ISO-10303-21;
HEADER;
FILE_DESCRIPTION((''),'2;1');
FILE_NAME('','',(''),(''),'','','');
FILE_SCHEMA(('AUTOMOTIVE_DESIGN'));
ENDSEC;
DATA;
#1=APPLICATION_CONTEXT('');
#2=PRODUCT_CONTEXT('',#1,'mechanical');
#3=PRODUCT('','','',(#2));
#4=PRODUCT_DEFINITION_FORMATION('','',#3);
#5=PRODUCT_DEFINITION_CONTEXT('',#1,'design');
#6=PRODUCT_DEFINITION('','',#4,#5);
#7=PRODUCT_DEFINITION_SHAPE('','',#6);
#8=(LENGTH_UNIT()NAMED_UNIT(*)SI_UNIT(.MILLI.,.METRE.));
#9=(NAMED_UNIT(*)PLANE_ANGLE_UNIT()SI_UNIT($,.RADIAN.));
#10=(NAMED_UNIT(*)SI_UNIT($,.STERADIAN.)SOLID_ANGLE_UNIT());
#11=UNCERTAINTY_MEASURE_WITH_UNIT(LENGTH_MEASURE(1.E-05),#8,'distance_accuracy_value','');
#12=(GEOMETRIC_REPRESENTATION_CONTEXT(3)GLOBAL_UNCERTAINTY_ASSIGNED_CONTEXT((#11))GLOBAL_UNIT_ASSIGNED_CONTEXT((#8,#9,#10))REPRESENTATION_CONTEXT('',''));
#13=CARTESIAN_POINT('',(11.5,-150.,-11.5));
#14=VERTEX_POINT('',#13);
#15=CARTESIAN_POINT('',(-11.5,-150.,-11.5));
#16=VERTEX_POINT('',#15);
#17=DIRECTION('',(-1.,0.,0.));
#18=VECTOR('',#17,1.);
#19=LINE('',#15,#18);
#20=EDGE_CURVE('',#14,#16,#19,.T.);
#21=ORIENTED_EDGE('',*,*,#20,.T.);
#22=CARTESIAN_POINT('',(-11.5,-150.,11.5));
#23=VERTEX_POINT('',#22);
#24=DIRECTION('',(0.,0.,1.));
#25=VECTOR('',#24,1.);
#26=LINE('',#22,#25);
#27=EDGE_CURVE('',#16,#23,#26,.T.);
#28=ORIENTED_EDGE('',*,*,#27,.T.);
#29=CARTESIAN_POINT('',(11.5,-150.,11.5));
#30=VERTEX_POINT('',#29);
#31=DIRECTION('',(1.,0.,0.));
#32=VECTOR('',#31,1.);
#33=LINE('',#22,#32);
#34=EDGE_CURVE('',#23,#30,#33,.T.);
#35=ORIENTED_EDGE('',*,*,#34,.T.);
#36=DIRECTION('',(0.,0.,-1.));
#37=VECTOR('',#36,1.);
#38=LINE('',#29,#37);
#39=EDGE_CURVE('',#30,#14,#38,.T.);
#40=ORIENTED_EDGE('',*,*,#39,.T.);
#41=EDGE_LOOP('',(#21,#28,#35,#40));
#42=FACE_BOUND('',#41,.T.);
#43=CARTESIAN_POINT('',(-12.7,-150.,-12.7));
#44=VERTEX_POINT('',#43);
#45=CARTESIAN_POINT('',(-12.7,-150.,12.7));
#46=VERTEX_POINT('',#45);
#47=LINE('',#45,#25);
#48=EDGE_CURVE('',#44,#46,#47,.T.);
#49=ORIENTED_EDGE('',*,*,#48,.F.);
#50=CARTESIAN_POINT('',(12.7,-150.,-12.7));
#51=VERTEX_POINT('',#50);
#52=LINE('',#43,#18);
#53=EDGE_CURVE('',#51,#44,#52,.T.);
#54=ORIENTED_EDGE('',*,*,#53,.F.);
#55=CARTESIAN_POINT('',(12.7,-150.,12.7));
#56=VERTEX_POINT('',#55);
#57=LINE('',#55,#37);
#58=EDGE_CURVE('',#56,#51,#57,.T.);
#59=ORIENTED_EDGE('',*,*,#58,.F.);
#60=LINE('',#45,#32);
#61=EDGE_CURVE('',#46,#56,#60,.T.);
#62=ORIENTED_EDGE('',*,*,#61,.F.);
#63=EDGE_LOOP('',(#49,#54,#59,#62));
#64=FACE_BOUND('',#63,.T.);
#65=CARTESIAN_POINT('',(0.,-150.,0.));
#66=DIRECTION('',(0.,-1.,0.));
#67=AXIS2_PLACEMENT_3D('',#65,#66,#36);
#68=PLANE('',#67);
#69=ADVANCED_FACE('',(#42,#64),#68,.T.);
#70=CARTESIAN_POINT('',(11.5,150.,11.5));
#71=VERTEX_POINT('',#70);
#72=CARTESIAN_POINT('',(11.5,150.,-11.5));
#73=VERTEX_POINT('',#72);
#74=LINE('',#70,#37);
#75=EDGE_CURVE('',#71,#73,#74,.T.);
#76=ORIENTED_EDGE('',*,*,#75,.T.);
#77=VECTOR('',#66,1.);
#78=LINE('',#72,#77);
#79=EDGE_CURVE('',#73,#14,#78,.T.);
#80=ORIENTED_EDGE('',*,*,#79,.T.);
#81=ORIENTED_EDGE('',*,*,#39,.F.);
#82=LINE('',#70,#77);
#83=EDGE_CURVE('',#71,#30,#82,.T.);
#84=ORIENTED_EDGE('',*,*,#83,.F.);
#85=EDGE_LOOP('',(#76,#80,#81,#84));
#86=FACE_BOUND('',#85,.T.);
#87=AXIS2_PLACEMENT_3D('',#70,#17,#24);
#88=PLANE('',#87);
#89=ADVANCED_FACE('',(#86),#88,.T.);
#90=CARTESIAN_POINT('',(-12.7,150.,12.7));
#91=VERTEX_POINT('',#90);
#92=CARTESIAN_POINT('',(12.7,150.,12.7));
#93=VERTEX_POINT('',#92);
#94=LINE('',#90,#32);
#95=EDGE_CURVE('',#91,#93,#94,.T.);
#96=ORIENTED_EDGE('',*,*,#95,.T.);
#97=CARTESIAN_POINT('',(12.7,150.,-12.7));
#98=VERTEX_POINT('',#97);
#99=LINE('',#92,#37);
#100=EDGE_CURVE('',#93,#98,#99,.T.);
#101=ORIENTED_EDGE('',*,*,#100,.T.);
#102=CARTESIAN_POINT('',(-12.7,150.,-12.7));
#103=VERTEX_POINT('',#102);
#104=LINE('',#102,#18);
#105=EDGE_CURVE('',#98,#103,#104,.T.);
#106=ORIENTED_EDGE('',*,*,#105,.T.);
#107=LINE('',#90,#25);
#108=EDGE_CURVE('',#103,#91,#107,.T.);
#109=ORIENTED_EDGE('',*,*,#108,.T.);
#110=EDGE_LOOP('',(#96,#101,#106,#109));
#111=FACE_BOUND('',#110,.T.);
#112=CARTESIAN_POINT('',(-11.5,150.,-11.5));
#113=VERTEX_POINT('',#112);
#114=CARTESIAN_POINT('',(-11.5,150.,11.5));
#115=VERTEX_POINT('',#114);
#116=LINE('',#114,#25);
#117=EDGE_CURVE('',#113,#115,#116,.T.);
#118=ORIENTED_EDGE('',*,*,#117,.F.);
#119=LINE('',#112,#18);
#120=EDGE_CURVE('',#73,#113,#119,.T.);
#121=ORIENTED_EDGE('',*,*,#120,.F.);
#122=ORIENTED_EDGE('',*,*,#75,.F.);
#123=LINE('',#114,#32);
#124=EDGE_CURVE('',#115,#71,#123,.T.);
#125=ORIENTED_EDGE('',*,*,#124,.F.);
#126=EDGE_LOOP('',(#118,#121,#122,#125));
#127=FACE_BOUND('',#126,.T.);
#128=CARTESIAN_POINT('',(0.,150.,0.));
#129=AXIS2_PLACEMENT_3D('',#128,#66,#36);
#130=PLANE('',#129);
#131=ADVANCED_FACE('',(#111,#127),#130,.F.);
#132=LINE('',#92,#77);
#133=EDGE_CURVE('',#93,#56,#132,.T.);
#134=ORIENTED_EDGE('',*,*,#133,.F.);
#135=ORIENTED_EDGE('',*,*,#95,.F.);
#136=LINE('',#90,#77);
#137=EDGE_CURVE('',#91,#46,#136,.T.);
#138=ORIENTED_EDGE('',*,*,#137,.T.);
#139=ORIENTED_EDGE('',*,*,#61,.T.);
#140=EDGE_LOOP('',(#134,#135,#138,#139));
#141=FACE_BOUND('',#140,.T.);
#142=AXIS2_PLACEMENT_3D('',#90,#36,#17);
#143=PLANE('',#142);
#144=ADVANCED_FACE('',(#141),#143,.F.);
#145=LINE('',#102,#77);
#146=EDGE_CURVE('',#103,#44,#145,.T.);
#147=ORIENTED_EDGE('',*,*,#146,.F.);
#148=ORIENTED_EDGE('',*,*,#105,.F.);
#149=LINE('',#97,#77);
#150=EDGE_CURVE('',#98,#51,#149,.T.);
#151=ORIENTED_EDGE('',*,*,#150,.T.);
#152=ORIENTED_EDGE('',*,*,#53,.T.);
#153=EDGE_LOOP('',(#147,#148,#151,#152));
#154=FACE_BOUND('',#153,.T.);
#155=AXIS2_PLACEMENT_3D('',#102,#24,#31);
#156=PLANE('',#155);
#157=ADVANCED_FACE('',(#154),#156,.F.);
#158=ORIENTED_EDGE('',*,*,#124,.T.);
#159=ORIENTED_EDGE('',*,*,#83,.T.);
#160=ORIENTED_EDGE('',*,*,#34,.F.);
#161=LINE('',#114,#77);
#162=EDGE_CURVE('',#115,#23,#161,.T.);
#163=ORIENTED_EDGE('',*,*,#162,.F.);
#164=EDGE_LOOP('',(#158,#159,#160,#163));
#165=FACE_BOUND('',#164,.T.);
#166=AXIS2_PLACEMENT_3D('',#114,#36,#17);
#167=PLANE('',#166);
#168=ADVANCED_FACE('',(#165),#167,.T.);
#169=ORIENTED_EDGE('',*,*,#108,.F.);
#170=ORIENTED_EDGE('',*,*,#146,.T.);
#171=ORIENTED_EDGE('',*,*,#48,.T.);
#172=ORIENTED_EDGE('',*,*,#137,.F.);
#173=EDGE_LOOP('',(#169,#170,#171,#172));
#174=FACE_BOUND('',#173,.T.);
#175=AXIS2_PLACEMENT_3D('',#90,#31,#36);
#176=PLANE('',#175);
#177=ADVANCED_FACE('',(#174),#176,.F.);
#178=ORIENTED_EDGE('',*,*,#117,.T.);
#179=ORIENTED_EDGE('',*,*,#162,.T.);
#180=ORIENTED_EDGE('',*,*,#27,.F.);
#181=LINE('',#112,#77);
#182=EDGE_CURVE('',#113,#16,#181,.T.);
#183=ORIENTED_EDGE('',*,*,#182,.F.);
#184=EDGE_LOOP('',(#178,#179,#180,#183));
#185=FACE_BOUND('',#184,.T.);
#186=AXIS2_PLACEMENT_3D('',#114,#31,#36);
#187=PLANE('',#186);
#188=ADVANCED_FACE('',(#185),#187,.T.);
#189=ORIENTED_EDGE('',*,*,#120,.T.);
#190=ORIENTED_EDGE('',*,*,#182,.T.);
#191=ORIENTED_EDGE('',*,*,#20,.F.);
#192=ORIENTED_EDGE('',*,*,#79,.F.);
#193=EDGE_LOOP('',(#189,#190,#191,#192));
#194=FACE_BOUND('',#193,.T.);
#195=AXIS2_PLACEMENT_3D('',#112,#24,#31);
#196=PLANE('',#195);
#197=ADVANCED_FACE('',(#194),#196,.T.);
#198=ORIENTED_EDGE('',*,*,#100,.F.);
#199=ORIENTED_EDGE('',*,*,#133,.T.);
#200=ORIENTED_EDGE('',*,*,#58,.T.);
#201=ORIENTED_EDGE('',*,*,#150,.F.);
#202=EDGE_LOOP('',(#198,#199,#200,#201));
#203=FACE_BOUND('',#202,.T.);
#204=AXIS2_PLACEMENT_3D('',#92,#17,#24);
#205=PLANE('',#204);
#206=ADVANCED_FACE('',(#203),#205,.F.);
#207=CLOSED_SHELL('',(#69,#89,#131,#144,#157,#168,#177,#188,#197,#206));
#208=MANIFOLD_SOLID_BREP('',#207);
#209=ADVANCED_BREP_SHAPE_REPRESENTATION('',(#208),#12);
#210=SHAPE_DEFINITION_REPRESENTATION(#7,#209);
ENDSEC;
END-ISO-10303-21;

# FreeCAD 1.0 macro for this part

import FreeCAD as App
import Part
import Sketcher

V = App.Vector

doc = App.newDocument("Part")
body = doc.addObject("PartDesign::Body", "Body")

# Sketch on XZ plane
sketch1 = body.newObject("Sketcher::SketchObject", "Sketch")
sketch1.AttachmentSupport = (doc.getObject("XZ_Plane"), [""])
sketch1.MapMode = "FlatFace"
sketch1.addGeometry([
    Part.LineSegment(V(-13, -13, 0), V(-13, 13, 0)),  # 0
    Part.LineSegment(V(-13, 13, 0), V(13, 13, 0)),  # 1
    Part.LineSegment(V(13, 13, 0), V(13, -13, 0)),  # 2
    Part.LineSegment(V(13, -13, 0), V(-13, -13, 0)),  # 3
    Part.LineSegment(V(12, 12, 0), V(-12, 12, 0)),  # 4
    Part.LineSegment(V(-12, 12, 0), V(-12, -12, 0)),  # 5
    Part.LineSegment(V(-12, -12, 0), V(12, -12, 0)),  # 6
    Part.LineSegment(V(12, -12, 0), V(12, 12, 0)),  # 7
], False)
sketch1.addConstraint([
    Sketcher.Constraint("Coincident", 0, 2, 1, 1),
    Sketcher.Constraint("Coincident", 1, 2, 2, 1),
    Sketcher.Constraint("Coincident", 2, 2, 3, 1),
    Sketcher.Constraint("Coincident", 3, 2, 0, 1),
    Sketcher.Constraint("Coincident", 4, 2, 5, 1),
    Sketcher.Constraint("Coincident", 5, 2, 6, 1),
    Sketcher.Constraint("Coincident", 6, 2, 7, 1),
    Sketcher.Constraint("Coincident", 7, 2, 4, 1),
    Sketcher.Constraint("Vertical", 0),
    Sketcher.Constraint("Horizontal", 1),
    Sketcher.Constraint("Vertical", 2),
    Sketcher.Constraint("Horizontal", 3),
    Sketcher.Constraint("Horizontal", 4),
    Sketcher.Constraint("Vertical", 5),
    Sketcher.Constraint("Horizontal", 6),
    Sketcher.Constraint("Vertical", 7),
    Sketcher.Constraint("Symmetric", 0, 2, 2, 2, -1, 1),
    Sketcher.Constraint("Symmetric", 4, 2, 6, 2, -1, 1),
    Sketcher.Constraint("Equal", 3, 0),
    Sketcher.Constraint("Equal", 6, 5),
    Sketcher.Constraint("DistanceX", 4, 2, 4, 1, 23.0),
    Sketcher.Constraint("DistanceX", 1, 1, 1, 2, 25.4),
])
pad1 = body.newObject("PartDesign::Pad", "Pad")
pad1.Profile = sketch1
pad1.Length = 300
pad1.Midplane = True

doc.recompute()
